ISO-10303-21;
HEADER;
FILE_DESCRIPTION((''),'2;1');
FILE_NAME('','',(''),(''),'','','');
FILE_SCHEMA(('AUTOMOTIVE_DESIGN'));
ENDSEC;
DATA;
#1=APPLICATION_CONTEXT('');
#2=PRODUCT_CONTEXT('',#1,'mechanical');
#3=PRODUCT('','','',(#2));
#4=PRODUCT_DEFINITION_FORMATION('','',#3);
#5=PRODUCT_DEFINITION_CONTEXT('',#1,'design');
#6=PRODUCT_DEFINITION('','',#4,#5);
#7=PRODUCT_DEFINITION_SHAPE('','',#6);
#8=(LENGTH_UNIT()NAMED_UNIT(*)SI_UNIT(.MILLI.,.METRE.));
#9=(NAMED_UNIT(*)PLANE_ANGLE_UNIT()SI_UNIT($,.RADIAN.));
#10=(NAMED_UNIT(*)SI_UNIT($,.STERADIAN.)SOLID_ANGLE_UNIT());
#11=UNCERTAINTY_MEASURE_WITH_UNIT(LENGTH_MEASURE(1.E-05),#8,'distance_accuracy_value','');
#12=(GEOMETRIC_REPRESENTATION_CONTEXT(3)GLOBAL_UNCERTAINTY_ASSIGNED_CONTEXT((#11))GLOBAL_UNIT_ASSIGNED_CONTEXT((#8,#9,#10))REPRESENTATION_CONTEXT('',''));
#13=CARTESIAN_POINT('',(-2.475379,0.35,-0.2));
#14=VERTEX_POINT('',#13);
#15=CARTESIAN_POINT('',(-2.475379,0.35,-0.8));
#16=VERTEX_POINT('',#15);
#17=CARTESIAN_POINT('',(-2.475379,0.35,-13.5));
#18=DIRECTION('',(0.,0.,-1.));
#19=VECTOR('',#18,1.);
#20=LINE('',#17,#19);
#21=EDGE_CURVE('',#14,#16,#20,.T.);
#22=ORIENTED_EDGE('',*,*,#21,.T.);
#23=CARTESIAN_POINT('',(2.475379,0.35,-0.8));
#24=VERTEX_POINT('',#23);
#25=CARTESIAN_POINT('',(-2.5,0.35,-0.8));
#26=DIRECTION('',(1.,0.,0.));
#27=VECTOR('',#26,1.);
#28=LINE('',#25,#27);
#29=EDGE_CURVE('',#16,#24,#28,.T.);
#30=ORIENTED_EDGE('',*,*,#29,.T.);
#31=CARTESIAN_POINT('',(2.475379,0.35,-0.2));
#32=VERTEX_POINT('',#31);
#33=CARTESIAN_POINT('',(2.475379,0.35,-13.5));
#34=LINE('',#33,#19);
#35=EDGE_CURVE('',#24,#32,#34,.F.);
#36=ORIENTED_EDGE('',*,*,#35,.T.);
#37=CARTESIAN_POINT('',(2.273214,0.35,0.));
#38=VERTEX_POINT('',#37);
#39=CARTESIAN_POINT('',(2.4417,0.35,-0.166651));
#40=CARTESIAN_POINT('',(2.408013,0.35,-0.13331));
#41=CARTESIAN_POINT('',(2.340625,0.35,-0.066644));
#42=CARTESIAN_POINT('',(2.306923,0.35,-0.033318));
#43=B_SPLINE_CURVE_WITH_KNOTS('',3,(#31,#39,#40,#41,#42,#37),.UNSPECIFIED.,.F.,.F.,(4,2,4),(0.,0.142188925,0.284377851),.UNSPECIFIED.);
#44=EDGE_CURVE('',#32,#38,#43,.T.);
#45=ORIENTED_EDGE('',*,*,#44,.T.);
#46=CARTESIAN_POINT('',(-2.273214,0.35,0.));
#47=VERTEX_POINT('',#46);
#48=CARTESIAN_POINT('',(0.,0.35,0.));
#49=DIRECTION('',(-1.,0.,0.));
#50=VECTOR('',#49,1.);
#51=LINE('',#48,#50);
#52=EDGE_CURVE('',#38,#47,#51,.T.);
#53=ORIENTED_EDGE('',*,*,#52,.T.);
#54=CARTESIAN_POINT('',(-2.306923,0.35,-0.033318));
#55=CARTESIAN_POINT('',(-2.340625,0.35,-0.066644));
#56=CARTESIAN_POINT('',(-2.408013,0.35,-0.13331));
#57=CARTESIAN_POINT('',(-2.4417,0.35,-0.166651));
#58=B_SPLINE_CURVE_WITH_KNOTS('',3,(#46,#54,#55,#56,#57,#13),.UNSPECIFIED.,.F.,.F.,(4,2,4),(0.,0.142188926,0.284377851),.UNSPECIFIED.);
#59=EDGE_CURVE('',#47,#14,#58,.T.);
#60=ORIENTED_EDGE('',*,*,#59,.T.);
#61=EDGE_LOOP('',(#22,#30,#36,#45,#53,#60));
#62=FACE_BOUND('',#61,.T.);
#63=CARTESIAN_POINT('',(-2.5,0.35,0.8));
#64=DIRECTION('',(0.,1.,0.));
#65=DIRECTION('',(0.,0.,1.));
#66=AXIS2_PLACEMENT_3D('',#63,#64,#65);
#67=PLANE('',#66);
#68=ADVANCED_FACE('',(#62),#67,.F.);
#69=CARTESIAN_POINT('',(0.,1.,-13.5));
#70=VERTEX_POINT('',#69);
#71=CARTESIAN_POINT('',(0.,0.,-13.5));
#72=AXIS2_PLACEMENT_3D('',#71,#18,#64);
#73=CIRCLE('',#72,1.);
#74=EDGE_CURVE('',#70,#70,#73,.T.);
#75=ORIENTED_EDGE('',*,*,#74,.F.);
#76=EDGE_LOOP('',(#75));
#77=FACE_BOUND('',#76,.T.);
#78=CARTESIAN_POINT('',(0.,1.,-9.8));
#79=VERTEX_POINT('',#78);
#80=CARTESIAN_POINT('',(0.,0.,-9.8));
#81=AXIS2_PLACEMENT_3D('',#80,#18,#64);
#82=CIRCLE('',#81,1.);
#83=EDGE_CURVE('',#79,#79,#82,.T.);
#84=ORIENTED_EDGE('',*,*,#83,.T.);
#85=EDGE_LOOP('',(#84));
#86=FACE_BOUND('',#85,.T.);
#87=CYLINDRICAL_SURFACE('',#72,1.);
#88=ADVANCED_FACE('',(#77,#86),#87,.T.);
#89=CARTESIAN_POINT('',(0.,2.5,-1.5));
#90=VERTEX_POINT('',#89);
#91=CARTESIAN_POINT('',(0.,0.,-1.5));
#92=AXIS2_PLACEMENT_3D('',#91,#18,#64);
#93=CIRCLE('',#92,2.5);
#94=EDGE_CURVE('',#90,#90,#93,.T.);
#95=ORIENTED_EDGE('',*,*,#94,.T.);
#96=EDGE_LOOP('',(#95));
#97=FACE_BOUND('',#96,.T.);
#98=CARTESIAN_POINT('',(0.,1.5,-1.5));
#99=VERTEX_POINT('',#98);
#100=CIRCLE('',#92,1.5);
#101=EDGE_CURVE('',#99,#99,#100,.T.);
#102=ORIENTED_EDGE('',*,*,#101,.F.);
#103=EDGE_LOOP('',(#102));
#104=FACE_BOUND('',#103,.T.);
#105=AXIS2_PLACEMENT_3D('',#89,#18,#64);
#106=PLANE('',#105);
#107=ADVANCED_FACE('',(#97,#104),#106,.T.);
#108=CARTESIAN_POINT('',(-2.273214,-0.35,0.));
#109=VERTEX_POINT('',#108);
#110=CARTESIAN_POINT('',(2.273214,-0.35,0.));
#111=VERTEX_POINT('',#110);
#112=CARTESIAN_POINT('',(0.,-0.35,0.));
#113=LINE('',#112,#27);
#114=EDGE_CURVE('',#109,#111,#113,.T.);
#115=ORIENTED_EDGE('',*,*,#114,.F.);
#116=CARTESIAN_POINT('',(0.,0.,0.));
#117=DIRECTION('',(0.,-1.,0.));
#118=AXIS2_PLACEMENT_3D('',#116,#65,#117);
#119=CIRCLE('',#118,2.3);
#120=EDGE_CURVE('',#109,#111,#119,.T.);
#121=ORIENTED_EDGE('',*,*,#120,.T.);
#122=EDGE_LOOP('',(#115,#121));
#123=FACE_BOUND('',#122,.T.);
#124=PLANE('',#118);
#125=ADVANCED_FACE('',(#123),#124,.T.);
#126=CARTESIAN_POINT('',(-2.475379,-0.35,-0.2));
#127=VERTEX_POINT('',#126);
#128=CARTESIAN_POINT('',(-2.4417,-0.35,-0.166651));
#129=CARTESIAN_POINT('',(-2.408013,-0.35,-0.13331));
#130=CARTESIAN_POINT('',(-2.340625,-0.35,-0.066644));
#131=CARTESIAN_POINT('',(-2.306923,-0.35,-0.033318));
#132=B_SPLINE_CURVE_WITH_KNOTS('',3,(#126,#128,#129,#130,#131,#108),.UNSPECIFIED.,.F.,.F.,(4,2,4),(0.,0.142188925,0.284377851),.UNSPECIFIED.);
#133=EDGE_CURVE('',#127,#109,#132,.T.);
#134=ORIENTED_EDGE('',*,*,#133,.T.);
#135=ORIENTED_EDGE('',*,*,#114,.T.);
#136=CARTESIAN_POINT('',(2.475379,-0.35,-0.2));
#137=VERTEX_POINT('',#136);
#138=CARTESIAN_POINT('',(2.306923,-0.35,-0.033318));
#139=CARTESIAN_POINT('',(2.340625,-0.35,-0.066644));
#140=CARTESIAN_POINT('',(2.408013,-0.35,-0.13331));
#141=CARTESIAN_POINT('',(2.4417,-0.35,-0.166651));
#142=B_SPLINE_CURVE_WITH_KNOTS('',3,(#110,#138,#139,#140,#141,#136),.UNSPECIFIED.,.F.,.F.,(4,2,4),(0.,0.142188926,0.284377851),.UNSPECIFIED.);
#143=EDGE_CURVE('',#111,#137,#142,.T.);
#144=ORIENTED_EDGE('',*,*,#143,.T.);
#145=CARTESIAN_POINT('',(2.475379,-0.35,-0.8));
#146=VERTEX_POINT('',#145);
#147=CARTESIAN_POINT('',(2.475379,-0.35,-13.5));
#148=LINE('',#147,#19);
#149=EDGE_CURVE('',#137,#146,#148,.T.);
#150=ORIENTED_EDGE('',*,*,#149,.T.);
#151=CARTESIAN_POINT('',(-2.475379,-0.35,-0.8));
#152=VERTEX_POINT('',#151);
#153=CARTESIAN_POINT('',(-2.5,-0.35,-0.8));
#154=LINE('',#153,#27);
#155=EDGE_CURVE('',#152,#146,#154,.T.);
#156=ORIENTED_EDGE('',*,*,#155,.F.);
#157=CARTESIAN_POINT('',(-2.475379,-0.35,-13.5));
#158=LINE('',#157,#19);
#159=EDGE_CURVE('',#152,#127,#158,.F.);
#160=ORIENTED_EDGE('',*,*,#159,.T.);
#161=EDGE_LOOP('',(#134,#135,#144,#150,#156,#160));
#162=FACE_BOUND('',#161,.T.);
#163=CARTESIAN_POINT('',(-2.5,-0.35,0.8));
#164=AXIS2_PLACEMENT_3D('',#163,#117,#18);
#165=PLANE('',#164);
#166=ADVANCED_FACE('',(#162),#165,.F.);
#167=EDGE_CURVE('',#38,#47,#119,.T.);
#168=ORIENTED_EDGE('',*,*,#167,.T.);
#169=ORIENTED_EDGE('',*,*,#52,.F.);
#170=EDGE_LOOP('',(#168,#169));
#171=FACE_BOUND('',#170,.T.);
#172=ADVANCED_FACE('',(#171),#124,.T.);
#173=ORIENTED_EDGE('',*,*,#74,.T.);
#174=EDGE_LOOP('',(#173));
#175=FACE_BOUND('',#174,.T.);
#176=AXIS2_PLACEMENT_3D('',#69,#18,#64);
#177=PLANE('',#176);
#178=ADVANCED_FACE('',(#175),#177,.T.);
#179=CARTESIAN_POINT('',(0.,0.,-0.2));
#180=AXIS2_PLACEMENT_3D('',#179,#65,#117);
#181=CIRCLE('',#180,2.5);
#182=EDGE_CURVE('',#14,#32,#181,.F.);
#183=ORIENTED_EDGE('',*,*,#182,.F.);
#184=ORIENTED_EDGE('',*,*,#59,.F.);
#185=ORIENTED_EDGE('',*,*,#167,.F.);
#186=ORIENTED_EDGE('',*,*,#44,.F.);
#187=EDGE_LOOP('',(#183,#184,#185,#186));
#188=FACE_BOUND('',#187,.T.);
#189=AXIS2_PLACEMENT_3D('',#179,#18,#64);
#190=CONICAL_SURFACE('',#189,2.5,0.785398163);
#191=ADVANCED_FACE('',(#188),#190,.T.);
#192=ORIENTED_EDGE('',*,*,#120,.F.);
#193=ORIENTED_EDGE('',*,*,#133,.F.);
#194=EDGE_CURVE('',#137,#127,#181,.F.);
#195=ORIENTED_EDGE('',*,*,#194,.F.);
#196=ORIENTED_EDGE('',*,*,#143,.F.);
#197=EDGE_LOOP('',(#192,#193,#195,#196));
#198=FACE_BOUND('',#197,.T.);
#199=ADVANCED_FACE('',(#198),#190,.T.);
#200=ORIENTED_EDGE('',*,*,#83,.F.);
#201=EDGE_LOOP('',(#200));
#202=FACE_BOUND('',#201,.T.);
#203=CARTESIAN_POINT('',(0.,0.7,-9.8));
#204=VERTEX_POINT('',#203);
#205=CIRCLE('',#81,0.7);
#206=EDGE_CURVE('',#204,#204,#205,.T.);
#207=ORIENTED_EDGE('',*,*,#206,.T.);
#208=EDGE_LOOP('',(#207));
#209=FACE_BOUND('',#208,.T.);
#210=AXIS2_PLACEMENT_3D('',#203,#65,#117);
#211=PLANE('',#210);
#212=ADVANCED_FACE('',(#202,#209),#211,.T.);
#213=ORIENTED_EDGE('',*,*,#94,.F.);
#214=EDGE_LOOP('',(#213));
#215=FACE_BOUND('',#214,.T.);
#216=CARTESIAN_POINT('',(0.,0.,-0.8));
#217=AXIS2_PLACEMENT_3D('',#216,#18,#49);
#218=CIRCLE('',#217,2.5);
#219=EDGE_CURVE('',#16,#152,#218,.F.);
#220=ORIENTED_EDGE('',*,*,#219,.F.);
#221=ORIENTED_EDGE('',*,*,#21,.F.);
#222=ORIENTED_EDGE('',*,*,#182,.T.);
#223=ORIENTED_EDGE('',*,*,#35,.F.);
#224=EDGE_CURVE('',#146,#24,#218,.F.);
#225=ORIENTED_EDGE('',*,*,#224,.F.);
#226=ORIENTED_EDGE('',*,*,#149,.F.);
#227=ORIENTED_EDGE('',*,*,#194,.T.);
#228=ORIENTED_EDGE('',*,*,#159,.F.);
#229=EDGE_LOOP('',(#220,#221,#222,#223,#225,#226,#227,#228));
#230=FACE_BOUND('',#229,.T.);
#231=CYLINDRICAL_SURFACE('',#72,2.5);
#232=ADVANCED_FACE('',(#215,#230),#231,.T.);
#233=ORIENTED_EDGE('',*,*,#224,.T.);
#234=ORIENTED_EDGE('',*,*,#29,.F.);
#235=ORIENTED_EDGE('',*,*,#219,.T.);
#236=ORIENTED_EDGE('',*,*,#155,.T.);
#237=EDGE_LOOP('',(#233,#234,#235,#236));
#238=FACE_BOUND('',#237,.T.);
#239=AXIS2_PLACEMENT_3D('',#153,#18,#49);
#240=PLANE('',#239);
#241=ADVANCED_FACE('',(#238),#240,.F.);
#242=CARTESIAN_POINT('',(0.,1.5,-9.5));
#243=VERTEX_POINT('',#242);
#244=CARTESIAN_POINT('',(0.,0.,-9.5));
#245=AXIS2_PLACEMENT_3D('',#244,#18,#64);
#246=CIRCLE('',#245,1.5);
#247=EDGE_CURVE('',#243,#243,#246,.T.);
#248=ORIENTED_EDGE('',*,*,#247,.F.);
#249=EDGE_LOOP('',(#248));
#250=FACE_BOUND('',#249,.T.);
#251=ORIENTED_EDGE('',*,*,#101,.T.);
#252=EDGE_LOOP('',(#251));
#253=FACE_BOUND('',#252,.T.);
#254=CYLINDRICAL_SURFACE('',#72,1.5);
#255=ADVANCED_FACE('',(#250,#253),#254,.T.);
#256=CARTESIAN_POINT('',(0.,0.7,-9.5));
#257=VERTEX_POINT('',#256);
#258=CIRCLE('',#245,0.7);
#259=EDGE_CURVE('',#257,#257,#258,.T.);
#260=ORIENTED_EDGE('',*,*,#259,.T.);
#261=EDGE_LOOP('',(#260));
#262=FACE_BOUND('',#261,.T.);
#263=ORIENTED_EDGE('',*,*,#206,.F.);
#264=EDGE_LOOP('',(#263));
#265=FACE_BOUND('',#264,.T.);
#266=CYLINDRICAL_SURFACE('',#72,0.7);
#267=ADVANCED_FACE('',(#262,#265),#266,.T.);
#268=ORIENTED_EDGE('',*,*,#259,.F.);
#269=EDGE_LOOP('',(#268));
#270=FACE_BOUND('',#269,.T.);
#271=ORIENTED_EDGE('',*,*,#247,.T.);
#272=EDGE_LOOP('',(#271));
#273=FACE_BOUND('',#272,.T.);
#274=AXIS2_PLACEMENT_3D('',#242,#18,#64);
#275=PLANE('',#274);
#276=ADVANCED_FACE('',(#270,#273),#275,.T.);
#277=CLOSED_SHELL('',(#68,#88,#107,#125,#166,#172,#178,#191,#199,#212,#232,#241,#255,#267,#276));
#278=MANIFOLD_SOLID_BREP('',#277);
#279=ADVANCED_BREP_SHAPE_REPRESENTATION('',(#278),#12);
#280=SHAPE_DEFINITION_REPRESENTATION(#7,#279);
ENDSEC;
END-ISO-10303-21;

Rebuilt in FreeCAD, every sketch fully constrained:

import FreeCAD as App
import Part
import Sketcher
Q = App.Units.Quantity


def edges_at(feature, points):
    """Names of the edges that pass closest to the given points."""
    edges = feature.Shape.Edges
    near = lambda p: min(range(len(edges)), key=lambda i: edges[i].distToShape(Part.Vertex(*p))[0])
    return sorted({f"Edge{near(p) + 1}" for p in points})

doc = App.newDocument("Part")
body = doc.addObject("PartDesign::Body", "Body")

sketch1 = body.newObject("Sketcher::SketchObject", "Sketch")
sketch1.AttachmentSupport = (doc.getObject("YZ_Plane"), [""])
sketch1.MapMode = "FlatFace"
sketch1.addGeometry(Part.LineSegment(App.Vector(2.5, 0, 0), App.Vector(0, 0, 0)), False)
sketch1.addGeometry(Part.LineSegment(App.Vector(0, 0, 0), App.Vector(0, -13.5, 0)), False)
sketch1.addGeometry(Part.LineSegment(App.Vector(0, -13.5, 0), App.Vector(1, -13.5, 0)), False)
sketch1.addGeometry(Part.LineSegment(App.Vector(1, -13.5, 0), App.Vector(1, -9.8, 0)), False)
sketch1.addGeometry(Part.LineSegment(App.Vector(1, -9.8, 0), App.Vector(0.7, -9.8, 0)), False)
sketch1.addGeometry(Part.LineSegment(App.Vector(0.7, -9.8, 0), App.Vector(0.7, -9.5, 0)), False)
sketch1.addGeometry(Part.LineSegment(App.Vector(0.7, -9.5, 0), App.Vector(1.5, -9.5, 0)), False)
sketch1.addGeometry(Part.LineSegment(App.Vector(1.5, -9.5, 0), App.Vector(1.5, -1.5, 0)), False)
sketch1.addGeometry(Part.LineSegment(App.Vector(1.5, -1.5, 0), App.Vector(2.5, -1.5, 0)), False)
sketch1.addGeometry(Part.LineSegment(App.Vector(2.5, -1.5, 0), App.Vector(2.5, 0, 0)), False)
sketch1.addConstraint(Sketcher.Constraint("Coincident", 0, 2, 1, 1))
sketch1.addConstraint(Sketcher.Constraint("Coincident", 1, 2, 2, 1))
sketch1.addConstraint(Sketcher.Constraint("Coincident", 2, 2, 3, 1))
sketch1.addConstraint(Sketcher.Constraint("Coincident", 3, 2, 4, 1))
sketch1.addConstraint(Sketcher.Constraint("Coincident", 4, 2, 5, 1))
sketch1.addConstraint(Sketcher.Constraint("Coincident", 5, 2, 6, 1))
sketch1.addConstraint(Sketcher.Constraint("Coincident", 6, 2, 7, 1))
sketch1.addConstraint(Sketcher.Constraint("Coincident", 7, 2, 8, 1))
sketch1.addConstraint(Sketcher.Constraint("Coincident", 8, 2, 9, 1))
sketch1.addConstraint(Sketcher.Constraint("Coincident", 9, 2, 0, 1))
sketch1.addConstraint(Sketcher.Constraint("Horizontal", 0))
sketch1.addConstraint(Sketcher.Constraint("Vertical", 1))
sketch1.addConstraint(Sketcher.Constraint("Horizontal", 2))
sketch1.addConstraint(Sketcher.Constraint("Vertical", 3))
sketch1.addConstraint(Sketcher.Constraint("Horizontal", 4))
sketch1.addConstraint(Sketcher.Constraint("Vertical", 5))
sketch1.addConstraint(Sketcher.Constraint("Horizontal", 6))
sketch1.addConstraint(Sketcher.Constraint("Vertical", 7))
sketch1.addConstraint(Sketcher.Constraint("Horizontal", 8))
sketch1.addConstraint(Sketcher.Constraint("Vertical", 9))
sketch1.addConstraint(Sketcher.Constraint("Coincident", 0, 2, -1, 1))
sketch1.addConstraint(Sketcher.Constraint("Equal", 2, 8))
sketch1.addConstraint(Sketcher.Constraint("Equal", 4, 5))
sketch1.addConstraint(Sketcher.Constraint("DistanceX", 2, 1, 2, 2, Q("1 mm")))
sketch1.addConstraint(Sketcher.Constraint("DistanceY", 7, 1, 7, 2, Q("8 mm")))
sketch1.addConstraint(Sketcher.Constraint("DistanceX", 0, 2, 0, 1, Q("2.5 mm")))
sketch1.addConstraint(Sketcher.Constraint("DistanceX", 4, 2, 4, 1, Q("0.3 mm")))
sketch1.addConstraint(Sketcher.Constraint("DistanceY", 1, 2, 1, 1, Q("13.5 mm")))
sketch1.addConstraint(Sketcher.Constraint("DistanceY", 3, 1, 3, 2, Q("3.7 mm")))
revolution = body.newObject("PartDesign::Revolution", "Revolution")
revolution.Profile = sketch1
revolution.ReferenceAxis = (sketch1, ["V_Axis"])
revolution.Angle = 360

sketch2 = body.newObject("Sketcher::SketchObject", "Sketch001")
sketch2.AttachmentSupport = (doc.getObject("YZ_Plane"), [""])
sketch2.MapMode = "FlatFace"
sketch2.addGeometry(Part.LineSegment(App.Vector(0.3, 0.8, 0), App.Vector(-0.3, 0.8, 0)), False)
sketch2.addGeometry(Part.LineSegment(App.Vector(-0.3, 0.8, 0), App.Vector(-0.3, -0.8, 0)), False)
sketch2.addGeometry(Part.LineSegment(App.Vector(-0.3, -0.8, 0), App.Vector(0.3, -0.8, 0)), False)
sketch2.addGeometry(Part.LineSegment(App.Vector(0.3, -0.8, 0), App.Vector(0.3, 0.8, 0)), False)
sketch2.addConstraint(Sketcher.Constraint("Coincident", 0, 2, 1, 1))
sketch2.addConstraint(Sketcher.Constraint("Coincident", 1, 2, 2, 1))
sketch2.addConstraint(Sketcher.Constraint("Coincident", 2, 2, 3, 1))
sketch2.addConstraint(Sketcher.Constraint("Coincident", 3, 2, 0, 1))
sketch2.addConstraint(Sketcher.Constraint("Horizontal", 0))
sketch2.addConstraint(Sketcher.Constraint("Vertical", 1))
sketch2.addConstraint(Sketcher.Constraint("Horizontal", 2))
sketch2.addConstraint(Sketcher.Constraint("Vertical", 3))
sketch2.addConstraint(Sketcher.Constraint("Symmetric", 0, 2, 2, 2, -1, 1))
sketch2.addConstraint(Sketcher.Constraint("DistanceX", 0, 2, 0, 1, Q("0.7 mm")))
sketch2.addConstraint(Sketcher.Constraint("DistanceY", 1, 2, 1, 1, Q("1.6 mm")))
pocket1 = body.newObject("PartDesign::Pocket", "Pocket")
pocket1.Profile = sketch2
pocket1.Type = "ThroughAll"
pocket1.Midplane = True
doc.recompute()

chamfer = body.newObject("PartDesign::Chamfer", "Chamfer")
chamfer.Base = (pocket1, edges_at(pocket1, [(0, -2.5, 0), (-1.639, 1.887, 0)]))
chamfer.Size = 0.2

doc.recompute()
